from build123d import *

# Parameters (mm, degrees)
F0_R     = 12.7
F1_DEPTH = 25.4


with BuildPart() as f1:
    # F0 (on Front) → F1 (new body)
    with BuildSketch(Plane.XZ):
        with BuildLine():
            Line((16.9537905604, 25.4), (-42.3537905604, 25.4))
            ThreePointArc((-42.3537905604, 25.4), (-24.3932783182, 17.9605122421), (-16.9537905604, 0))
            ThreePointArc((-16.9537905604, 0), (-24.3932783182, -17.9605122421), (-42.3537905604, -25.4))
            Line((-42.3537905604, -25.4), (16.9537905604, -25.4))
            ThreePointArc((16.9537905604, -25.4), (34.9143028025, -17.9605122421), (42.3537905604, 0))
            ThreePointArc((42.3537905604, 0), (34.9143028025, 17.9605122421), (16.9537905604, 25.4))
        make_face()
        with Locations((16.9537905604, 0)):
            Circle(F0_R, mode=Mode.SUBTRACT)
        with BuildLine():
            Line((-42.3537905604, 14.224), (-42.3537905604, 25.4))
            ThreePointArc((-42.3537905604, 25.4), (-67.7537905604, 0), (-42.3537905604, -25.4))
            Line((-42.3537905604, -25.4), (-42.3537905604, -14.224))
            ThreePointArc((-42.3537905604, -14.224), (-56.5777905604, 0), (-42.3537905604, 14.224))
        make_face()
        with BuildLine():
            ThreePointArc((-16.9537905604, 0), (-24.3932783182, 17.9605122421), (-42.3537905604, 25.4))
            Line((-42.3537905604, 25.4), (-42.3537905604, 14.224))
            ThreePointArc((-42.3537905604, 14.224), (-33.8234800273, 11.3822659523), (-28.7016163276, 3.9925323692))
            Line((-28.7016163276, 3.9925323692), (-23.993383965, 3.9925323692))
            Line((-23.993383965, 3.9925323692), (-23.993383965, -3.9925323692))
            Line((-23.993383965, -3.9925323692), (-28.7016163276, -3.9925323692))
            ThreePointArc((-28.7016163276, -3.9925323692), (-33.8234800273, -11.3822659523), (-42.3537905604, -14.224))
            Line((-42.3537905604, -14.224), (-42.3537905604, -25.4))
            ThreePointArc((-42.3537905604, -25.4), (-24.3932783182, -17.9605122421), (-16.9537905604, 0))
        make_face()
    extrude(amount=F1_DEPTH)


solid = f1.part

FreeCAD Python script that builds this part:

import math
import FreeCAD as App
import Part
import Sketcher

V = App.Vector
Q = App.Units.Quantity

doc = App.newDocument("Part")
body = doc.addObject("PartDesign::Body", "Body")

sketch1 = body.newObject("Sketcher::SketchObject", "Sketch")
sketch1.AttachmentSupport = (doc.getObject("XZ_Plane"), [""])
sketch1.MapMode = "FlatFace"
sketch1.addGeometry([
    Part.LineSegment(V(17, 25.4, 0), V(-42.4, 25.4, 0)),
    Part.ArcOfCircle(Part.Circle(V(-42.4, 0, 0), V(0, 0, 1), 25.4), math.radians(90), math.radians(270)),
    Part.LineSegment(V(-42.4, -25.4, 0), V(17, -25.4, 0)),
    Part.ArcOfCircle(Part.Circle(V(17, 0, 0), V(0, 0, 1), 25.4), math.radians(-90), math.radians(0)),
    Part.ArcOfCircle(Part.Circle(V(17, 0, 0), V(0, 0, 1), 25.4), math.radians(0), math.radians(90)),
    Part.Circle(V(17, 0, 0), V(0, 0, 1), 12.7),
    Part.ArcOfCircle(Part.Circle(V(-42.4, 0, 0), V(0, 0, 1), 14.2), math.radians(16), math.radians(90)),
    Part.LineSegment(V(-28.7, 4, 0), V(-24, 4, 0)),
    Part.LineSegment(V(-24, 4, 0), V(-24, -4, 0)),
    Part.LineSegment(V(-24, -4, 0), V(-28.7, -4, 0)),
    Part.ArcOfCircle(Part.Circle(V(-42.4, 0, 0), V(0, 0, 1), 14.2), math.radians(-90), math.radians(-16)),
    Part.ArcOfCircle(Part.Circle(V(-42.4, 0, 0), V(0, 0, 1), 14.2), math.radians(90), math.radians(270)),
], False)
sketch1.addConstraint([
    Sketcher.Constraint("Tangent", 0, 2, 1, 1),
    Sketcher.Constraint("Tangent", 1, 2, 2, 1),
    Sketcher.Constraint("Tangent", 2, 2, 3, 1),
    Sketcher.Constraint("Tangent", 3, 2, 4, 1),
    Sketcher.Constraint("Tangent", 4, 2, 0, 1),
    Sketcher.Constraint("Coincident", 6, 1, 7, 1),
    Sketcher.Constraint("Coincident", 7, 2, 8, 1),
    Sketcher.Constraint("Coincident", 8, 2, 9, 1),
    Sketcher.Constraint("Coincident", 9, 2, 10, 2),
    Sketcher.Constraint("Tangent", 10, 1, 11, 2),
    Sketcher.Constraint("Tangent", 11, 1, 6, 2),
    Sketcher.Constraint("Horizontal", 0),
    Sketcher.Constraint("Horizontal", 2),
    Sketcher.Constraint("Horizontal", 7),
    Sketcher.Constraint("Vertical", 8),
    Sketcher.Constraint("Horizontal", 9),
    Sketcher.Constraint("Coincident", 5, 3, 3, 3),
    Sketcher.Constraint("Coincident", 6, 3, 1, 3),
    Sketcher.Constraint("Equal", 1, 3),
    Sketcher.Constraint("Equal", 6, 10),
    Sketcher.Constraint("Equal", 10, 11),
    Sketcher.Constraint("Symmetric", 6, 1, 9, 2, -1),
    Sketcher.Constraint("PointOnObject", 3, 2, -1),
    Sketcher.Constraint("Vertical", 1, 2, 10, 1),
    Sketcher.Constraint("Vertical", 10, 1, 11, 1),
    Sketcher.Constraint("Diameter", 5, Q("1 in")),
    Sketcher.Constraint("Radius", 1, Q("1 in")),
    Sketcher.Constraint("Radius", 6, Q("0.56 in")),
    Sketcher.Constraint("DistanceX", 0, 2, 0, 1, Q("59.307581 mm")),
    Sketcher.Constraint("DistanceX", 7, 1, 7, 2, Q("4.708232 mm")),
    Sketcher.Constraint("DistanceY", 8, 2, 8, 1, Q("7.985065 mm")),
    Sketcher.Constraint("DistanceX", 1, 3, -1, 1, Q("42.353791 mm")),
])
pad1 = body.newObject("PartDesign::Pad", "Pad")
pad1.Profile = sketch1
pad1.Length = Q("1 in")

doc.recompute()
